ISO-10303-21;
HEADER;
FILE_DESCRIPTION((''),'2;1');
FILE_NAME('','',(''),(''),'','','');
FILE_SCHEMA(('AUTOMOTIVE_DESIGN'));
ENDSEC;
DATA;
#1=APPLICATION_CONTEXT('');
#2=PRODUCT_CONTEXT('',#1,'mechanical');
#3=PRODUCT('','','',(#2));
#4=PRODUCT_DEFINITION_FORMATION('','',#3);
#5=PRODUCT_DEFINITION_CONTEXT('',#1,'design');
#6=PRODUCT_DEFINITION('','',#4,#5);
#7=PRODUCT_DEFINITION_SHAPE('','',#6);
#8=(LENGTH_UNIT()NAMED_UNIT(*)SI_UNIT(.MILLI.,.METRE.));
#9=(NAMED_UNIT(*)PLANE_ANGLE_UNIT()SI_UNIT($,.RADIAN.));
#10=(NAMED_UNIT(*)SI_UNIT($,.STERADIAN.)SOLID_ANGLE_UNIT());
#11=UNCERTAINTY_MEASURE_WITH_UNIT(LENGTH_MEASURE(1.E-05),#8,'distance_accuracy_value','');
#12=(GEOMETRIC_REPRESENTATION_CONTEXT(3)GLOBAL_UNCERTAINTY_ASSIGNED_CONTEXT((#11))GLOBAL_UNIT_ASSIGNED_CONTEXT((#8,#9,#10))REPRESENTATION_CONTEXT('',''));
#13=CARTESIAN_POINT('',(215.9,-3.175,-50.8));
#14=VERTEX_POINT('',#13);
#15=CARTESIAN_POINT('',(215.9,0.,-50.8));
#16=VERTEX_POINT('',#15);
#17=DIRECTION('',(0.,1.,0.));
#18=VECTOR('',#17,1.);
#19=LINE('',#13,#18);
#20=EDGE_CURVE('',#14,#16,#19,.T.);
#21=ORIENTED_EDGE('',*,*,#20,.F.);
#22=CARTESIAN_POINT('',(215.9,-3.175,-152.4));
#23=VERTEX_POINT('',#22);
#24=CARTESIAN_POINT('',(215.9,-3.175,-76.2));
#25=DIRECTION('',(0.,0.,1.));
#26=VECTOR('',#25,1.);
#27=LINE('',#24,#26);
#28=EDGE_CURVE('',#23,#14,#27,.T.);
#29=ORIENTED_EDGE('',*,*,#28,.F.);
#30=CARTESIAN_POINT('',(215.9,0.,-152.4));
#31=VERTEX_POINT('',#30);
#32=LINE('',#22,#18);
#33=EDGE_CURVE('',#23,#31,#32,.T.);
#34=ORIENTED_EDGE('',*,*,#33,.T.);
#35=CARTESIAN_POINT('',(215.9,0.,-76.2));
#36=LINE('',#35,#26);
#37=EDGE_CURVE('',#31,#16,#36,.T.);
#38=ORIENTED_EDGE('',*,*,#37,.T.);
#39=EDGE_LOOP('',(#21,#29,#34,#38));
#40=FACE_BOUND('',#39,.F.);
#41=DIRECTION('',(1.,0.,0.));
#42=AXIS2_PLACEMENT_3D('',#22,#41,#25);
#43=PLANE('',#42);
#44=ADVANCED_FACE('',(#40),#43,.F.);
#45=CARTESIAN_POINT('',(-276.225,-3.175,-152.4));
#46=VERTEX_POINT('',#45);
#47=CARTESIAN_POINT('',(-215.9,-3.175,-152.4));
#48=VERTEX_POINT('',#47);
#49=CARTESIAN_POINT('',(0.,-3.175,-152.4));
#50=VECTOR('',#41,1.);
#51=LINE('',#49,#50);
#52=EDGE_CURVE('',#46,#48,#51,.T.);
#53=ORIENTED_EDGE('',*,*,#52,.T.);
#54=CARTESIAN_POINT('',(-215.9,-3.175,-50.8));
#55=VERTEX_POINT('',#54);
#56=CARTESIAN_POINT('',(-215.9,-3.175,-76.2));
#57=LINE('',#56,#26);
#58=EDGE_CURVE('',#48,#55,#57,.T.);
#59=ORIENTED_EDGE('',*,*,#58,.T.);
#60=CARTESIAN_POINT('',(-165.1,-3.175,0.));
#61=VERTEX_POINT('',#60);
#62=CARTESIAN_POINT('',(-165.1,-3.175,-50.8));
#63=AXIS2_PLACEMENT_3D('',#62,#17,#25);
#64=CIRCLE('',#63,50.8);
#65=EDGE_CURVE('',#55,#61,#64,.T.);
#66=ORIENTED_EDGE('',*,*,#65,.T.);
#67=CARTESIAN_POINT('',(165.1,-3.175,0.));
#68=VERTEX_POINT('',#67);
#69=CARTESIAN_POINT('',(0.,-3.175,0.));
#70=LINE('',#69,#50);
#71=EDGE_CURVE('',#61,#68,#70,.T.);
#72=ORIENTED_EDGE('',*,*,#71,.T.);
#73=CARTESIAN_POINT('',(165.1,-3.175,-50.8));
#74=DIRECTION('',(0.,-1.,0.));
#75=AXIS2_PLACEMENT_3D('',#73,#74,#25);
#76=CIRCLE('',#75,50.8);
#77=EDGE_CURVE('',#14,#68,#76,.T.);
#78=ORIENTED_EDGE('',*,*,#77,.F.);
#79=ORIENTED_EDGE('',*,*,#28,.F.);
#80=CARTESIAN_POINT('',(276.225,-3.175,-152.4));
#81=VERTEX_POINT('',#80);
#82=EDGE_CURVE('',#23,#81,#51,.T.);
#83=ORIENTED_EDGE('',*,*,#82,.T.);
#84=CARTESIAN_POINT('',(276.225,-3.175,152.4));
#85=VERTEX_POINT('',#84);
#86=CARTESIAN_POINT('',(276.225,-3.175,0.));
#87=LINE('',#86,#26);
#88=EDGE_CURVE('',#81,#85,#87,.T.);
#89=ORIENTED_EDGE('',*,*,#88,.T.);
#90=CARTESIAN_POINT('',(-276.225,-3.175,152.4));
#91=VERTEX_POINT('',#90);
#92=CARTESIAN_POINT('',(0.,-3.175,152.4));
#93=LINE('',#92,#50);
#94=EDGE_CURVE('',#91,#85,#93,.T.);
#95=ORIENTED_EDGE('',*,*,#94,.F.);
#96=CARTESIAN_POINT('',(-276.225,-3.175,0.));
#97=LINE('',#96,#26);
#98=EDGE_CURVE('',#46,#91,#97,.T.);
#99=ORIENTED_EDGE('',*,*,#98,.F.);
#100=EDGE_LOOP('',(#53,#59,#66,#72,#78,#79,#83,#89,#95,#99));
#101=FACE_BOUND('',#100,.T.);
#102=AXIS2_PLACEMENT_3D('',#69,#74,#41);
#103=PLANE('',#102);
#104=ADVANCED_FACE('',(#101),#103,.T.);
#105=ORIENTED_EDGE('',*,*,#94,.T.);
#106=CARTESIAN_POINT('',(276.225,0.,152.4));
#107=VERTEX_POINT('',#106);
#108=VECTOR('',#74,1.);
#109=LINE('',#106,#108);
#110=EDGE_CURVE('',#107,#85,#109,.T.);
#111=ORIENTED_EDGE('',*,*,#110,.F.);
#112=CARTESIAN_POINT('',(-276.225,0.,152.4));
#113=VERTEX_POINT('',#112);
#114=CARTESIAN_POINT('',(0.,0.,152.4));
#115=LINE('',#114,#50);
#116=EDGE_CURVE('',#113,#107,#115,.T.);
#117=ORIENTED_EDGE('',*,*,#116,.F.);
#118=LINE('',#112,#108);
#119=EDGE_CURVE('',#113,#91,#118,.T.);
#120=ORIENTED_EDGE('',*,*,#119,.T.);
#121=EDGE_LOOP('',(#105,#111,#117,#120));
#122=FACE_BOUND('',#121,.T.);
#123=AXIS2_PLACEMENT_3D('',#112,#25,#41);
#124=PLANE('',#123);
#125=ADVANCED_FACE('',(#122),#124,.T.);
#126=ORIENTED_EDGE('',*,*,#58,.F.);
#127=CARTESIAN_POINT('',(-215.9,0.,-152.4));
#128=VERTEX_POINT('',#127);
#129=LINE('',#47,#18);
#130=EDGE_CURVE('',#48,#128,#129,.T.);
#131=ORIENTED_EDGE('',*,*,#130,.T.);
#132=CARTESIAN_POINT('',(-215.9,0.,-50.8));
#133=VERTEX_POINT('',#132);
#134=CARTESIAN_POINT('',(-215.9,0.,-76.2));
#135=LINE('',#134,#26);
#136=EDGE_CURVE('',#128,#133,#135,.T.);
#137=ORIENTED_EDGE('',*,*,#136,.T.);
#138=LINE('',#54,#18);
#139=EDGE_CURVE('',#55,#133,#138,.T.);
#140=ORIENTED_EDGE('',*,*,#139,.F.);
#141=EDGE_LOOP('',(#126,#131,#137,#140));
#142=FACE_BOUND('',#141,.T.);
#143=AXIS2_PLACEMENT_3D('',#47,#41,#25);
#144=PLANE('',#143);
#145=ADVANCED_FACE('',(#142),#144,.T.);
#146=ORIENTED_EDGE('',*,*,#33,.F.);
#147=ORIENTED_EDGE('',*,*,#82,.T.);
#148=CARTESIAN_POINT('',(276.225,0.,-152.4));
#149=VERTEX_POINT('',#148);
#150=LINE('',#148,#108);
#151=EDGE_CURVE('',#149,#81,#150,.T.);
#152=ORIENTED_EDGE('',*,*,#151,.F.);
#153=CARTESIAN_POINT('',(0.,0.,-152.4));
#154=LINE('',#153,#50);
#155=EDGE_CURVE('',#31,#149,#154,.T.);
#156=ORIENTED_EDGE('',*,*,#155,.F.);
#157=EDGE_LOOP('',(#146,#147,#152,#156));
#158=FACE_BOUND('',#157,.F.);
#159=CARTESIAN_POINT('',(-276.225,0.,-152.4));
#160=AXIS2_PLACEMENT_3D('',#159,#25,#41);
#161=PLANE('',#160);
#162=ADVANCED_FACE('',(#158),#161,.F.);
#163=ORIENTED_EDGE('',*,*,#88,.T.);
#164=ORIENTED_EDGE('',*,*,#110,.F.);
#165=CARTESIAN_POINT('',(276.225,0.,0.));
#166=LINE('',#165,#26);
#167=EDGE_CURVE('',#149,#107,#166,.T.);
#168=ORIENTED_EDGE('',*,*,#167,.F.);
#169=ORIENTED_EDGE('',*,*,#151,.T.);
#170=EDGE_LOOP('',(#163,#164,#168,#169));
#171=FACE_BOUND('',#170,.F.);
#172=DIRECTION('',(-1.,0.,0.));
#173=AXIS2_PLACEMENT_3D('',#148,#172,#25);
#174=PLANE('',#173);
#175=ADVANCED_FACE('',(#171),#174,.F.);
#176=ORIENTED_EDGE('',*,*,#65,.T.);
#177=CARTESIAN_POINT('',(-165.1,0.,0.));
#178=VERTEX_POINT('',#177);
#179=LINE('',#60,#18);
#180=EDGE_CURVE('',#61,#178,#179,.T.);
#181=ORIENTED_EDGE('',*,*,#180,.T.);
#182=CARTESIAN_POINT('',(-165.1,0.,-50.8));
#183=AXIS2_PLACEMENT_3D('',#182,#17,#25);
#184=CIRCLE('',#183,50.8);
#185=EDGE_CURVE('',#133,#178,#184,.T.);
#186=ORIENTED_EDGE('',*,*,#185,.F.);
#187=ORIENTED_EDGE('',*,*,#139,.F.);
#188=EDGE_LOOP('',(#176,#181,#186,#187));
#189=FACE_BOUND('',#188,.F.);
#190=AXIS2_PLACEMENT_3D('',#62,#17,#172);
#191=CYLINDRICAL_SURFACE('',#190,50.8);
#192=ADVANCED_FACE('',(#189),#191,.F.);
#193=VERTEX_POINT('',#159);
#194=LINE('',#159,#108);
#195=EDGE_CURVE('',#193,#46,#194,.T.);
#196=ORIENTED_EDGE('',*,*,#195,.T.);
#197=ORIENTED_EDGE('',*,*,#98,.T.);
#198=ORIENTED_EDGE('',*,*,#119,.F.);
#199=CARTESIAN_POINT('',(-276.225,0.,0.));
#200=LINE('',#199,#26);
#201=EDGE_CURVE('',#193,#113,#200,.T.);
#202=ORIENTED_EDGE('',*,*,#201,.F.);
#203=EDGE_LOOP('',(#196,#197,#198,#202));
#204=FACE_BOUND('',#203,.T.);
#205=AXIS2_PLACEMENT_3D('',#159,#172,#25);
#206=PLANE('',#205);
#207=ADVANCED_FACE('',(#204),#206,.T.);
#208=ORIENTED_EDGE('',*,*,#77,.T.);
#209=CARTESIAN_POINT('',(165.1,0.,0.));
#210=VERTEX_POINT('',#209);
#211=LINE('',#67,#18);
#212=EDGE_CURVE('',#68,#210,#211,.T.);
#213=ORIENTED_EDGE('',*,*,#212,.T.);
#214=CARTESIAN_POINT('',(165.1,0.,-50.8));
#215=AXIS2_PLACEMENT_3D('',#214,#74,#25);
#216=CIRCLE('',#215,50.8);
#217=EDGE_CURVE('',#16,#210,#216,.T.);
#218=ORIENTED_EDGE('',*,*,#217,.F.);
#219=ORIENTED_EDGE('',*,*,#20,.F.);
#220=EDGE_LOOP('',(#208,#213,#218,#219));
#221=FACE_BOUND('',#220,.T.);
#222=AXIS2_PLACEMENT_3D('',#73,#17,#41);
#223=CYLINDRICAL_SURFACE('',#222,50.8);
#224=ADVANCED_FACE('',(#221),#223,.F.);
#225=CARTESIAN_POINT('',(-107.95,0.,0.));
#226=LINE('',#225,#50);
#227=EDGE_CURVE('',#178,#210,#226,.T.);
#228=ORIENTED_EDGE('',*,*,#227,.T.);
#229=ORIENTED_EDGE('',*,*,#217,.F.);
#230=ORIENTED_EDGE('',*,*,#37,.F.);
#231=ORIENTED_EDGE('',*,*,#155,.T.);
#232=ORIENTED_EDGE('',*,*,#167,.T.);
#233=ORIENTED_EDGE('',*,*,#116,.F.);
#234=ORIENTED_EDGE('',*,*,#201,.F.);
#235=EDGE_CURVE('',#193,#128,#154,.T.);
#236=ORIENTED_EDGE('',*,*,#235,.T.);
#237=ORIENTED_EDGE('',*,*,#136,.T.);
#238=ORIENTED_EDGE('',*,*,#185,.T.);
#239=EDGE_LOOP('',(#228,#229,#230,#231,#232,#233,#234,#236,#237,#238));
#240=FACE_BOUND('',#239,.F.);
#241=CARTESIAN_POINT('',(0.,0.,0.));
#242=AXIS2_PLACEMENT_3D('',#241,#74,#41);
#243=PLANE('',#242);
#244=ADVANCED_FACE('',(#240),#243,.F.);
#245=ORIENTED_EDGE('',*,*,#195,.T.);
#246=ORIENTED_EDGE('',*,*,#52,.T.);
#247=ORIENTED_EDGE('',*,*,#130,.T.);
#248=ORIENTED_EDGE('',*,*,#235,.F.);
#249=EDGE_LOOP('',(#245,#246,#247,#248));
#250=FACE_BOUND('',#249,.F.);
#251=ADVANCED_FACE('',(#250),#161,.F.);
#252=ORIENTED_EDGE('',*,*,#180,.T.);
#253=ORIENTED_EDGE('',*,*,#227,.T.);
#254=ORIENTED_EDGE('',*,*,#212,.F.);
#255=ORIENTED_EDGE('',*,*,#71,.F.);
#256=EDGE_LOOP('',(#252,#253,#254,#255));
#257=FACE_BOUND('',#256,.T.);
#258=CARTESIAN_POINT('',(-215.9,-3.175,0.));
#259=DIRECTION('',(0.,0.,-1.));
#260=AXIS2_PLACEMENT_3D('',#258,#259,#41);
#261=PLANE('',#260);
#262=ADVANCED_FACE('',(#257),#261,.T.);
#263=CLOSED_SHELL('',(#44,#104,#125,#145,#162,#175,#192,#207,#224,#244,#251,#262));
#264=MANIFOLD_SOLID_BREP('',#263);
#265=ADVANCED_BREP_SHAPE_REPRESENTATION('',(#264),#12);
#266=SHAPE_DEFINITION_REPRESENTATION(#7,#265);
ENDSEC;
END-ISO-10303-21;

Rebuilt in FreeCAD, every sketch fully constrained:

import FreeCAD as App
import Part
import Sketcher
Q = App.Units.Quantity


def edges_at(feature, points):
    """Names of the edges that pass closest to the given points."""
    edges = feature.Shape.Edges
    near = lambda p: min(range(len(edges)), key=lambda i: edges[i].distToShape(Part.Vertex(*p))[0])
    return sorted({f"Edge{near(p) + 1}" for p in points})


def add_polygon(sketch, points):
    """Adds a closed chain of lines whose ends are joined by coincident constraints."""
    first, n = sketch.GeometryCount, len(points)
    for a, b in zip(points, points[1:] + points[:1]):
        sketch.addGeometry(Part.LineSegment(App.Vector(*a, 0), App.Vector(*b, 0)), False)
    for i in range(n):
        sketch.addConstraint(Sketcher.Constraint("Coincident", first + i, 2, first + (i + 1) % n, 1))

doc = App.newDocument("Part")
params = doc.addObject("Spreadsheet::Sheet", "Params")
for row, (alias, value) in enumerate([
    ("sketch1_height", "12 in"),
    ("sketch1_width", "21.75 in"),
    ("pad1_length", "0.125 in"),
    ("sketch2_width", "17 in"),
    ("sketch2_height", "6 in"),
    ("fillet_radius", "2 in"),
], start=1):
    params.set(f"A{row}", alias)
    params.set(f"B{row}", "=" + value)
    params.setAlias(f"B{row}", alias)

body = doc.addObject("PartDesign::Body", "Body")

# Sketch on XZ plane
sketch1 = body.newObject("Sketcher::SketchObject", "Sketch")
sketch1.AttachmentSupport = (doc.getObject("XZ_Plane"), [""])
sketch1.MapMode = "FlatFace"
add_polygon(sketch1, [(-276, 152), (-276, -152), (276, -152), (276, 152)])  # lines 0-3
sketch1.addConstraint(Sketcher.Constraint("Vertical", 0))
sketch1.addConstraint(Sketcher.Constraint("Horizontal", 1))
sketch1.addConstraint(Sketcher.Constraint("Vertical", 2))
sketch1.addConstraint(Sketcher.Constraint("Horizontal", 3))
sketch1.addConstraint(Sketcher.Constraint("Symmetric", 0, 2, 2, 2, -1, 1))
sketch1.addConstraint(Sketcher.Constraint("DistanceY", 0, 2, 0, 1, Q("12 in")))
sketch1.addConstraint(Sketcher.Constraint("DistanceX", 1, 1, 1, 2, Q("21.75 in")))
sketch1.setExpression("Constraints[9]", "Params.sketch1_height")
sketch1.setExpression("Constraints[10]", "Params.sketch1_width")
pad1 = body.newObject("PartDesign::Pad", "Pad")
pad1.Profile = sketch1
pad1.setExpression("Length", "Params.pad1_length")

# Sketch on XZ plane
sketch2 = body.newObject("Sketcher::SketchObject", "Sketch001")
sketch2.AttachmentSupport = (doc.getObject("XZ_Plane"), [""])
sketch2.MapMode = "FlatFace"
sketch2.AttachmentOffset = App.Placement(App.Vector(0, 0, 0.125 * 25.4), App.Rotation())
add_polygon(sketch2, [(-216, 0), (-216, -152), (216, -152), (216, 0)])  # lines 0-3
sketch2.addConstraint(Sketcher.Constraint("Vertical", 0))
sketch2.addConstraint(Sketcher.Constraint("Horizontal", 1))
sketch2.addConstraint(Sketcher.Constraint("Vertical", 2))
sketch2.addConstraint(Sketcher.Constraint("Horizontal", 3))
sketch2.addConstraint(Sketcher.Constraint("Symmetric", 2, 2, 3, 2, -1, 1))
sketch2.addConstraint(Sketcher.Constraint("DistanceX", 1, 1, 1, 2, Q("17 in")))
sketch2.addConstraint(Sketcher.Constraint("DistanceY", 0, 2, 0, 1, Q("6 in")))
sketch2.setExpression("Constraints[9]", "Params.sketch2_width")
sketch2.setExpression("Constraints[10]", "Params.sketch2_height")
pocket1 = body.newObject("PartDesign::Pocket", "Pocket")
pocket1.Profile = sketch2
pocket1.Type = "ThroughAll"
doc.recompute()

fillet = body.newObject("PartDesign::Fillet", "Fillet")
fillet.Base = (pocket1, edges_at(pocket1, [(-215.9, -1.587, 0), (215.9, -1.587, 0)]))
fillet.setExpression("Radius", "Params.fillet_radius")

doc.recompute()
